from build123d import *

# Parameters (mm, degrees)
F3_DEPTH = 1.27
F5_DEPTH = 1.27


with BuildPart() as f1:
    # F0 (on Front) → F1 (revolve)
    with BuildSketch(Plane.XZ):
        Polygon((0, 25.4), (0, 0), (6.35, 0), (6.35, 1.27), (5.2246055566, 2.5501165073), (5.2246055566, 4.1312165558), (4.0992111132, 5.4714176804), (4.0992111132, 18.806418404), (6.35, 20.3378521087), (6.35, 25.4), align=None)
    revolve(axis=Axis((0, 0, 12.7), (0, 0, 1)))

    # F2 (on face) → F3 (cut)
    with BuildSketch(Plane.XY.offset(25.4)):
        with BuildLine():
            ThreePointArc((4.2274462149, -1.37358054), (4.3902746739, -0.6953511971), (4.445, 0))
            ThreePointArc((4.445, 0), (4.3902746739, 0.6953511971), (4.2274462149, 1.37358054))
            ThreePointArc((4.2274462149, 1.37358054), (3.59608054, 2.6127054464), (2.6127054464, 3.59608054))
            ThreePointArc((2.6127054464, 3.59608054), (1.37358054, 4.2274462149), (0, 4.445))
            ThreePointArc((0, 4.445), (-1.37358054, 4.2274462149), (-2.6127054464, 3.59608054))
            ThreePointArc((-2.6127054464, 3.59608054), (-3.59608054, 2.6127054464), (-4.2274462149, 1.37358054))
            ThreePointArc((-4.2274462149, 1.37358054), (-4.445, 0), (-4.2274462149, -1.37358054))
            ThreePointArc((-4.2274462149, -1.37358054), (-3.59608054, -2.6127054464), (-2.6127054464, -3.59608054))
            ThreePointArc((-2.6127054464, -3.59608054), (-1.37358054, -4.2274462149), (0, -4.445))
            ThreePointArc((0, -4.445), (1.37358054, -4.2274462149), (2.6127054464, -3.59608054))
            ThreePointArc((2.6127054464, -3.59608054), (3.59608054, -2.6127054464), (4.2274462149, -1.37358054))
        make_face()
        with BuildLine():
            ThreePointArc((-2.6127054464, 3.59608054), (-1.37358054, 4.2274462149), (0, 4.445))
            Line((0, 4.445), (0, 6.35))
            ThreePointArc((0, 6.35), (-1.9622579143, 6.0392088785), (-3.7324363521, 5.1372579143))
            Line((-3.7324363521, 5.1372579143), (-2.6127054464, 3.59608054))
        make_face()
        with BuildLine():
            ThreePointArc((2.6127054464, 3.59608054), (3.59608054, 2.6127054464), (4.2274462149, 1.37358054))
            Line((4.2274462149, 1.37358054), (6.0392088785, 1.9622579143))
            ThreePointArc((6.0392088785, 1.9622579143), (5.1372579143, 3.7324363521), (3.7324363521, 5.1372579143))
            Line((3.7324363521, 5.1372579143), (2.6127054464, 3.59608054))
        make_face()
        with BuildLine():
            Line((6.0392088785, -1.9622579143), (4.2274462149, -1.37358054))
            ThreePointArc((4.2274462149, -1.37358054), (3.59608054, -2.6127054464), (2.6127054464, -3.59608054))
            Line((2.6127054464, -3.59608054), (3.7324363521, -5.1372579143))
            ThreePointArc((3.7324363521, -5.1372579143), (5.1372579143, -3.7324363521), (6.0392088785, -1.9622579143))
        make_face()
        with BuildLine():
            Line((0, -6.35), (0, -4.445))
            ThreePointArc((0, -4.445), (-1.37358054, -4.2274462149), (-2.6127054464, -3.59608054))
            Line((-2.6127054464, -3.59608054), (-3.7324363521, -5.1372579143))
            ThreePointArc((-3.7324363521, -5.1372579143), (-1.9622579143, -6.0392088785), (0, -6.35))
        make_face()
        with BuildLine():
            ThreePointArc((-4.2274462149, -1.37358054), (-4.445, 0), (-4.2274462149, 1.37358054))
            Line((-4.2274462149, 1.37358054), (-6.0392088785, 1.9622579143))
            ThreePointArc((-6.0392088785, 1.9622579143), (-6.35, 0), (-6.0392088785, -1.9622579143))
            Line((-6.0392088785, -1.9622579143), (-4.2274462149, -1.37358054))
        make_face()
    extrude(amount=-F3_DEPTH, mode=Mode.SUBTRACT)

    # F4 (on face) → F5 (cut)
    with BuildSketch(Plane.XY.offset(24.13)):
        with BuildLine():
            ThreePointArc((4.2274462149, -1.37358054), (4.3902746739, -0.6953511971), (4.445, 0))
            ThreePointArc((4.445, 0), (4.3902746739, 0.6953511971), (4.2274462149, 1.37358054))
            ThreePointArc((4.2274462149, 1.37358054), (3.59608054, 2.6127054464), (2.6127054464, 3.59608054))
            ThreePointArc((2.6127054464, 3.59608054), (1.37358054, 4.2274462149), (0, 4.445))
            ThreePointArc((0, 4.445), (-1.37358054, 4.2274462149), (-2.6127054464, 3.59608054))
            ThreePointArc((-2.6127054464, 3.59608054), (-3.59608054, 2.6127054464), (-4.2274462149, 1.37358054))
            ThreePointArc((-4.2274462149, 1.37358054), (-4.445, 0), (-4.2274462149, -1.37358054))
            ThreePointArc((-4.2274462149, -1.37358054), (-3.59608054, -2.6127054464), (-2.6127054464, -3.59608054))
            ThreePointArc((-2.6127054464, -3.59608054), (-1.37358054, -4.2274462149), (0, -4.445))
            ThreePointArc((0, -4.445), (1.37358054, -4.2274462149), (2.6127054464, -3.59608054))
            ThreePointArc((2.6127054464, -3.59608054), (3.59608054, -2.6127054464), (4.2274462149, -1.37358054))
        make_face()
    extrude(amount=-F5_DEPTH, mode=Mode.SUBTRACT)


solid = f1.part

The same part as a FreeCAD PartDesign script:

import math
import FreeCAD as App
import Part
import Sketcher
from FreeCAD import Vector
Q = App.Units.Quantity


def add_polygon(sketch, points):
    """Adds a closed chain of lines whose ends are joined by coincident constraints."""
    first, n = sketch.GeometryCount, len(points)
    for a, b in zip(points, points[1:] + points[:1]):
        sketch.addGeometry(Part.LineSegment(App.Vector(*a, 0), App.Vector(*b, 0)), False)
    for i in range(n):
        sketch.addConstraint(Sketcher.Constraint("Coincident", first + i, 2, first + (i + 1) % n, 1))

doc = App.newDocument("Part")
params = doc.addObject("Spreadsheet::Sheet", "Params")
for row, (alias, value) in enumerate([
    ("sketch1_height", "1 in"),
    ("sketch1_width", "0.25 in"),
    ("sketch1_height2", "0.05 in"),
    ("sketch1_height3", "0.525 in"),
    ("revolution_angle", "360 deg"),
    ("sketch2_radius", "0.25 in"),
    ("sketch2_radius2", "0.175 in"),
    ("pocket1_length", "0.05 in"),
    ("sketch3_radius", "0.175 in"),
    ("pocket2_length", "0.05 in"),
], start=1):
    params.set(f"A{row}", alias)
    params.set(f"B{row}", "=" + value)
    params.setAlias(f"B{row}", alias)

body = doc.addObject("PartDesign::Body", "Body")

sketch1 = body.newObject("Sketcher::SketchObject", "Sketch")
sketch1.AttachmentSupport = (doc.getObject("XZ_Plane"), [""])
sketch1.MapMode = "FlatFace"
add_polygon(sketch1, [(0, 25.4), (0, 0), (6.3, 0), (6.3, 1.3), (5.2, 2.6), (5.2, 4.1), (4.1, 5.5), (4.1, 18.8), (6.3, 20.3), (6.3, 25.4)])
sketch1.addConstraint(Sketcher.Constraint("Vertical", 0))
sketch1.addConstraint(Sketcher.Constraint("Horizontal", 1))
sketch1.addConstraint(Sketcher.Constraint("Vertical", 2))
sketch1.addConstraint(Sketcher.Constraint("Vertical", 4))
sketch1.addConstraint(Sketcher.Constraint("Vertical", 6))
sketch1.addConstraint(Sketcher.Constraint("Vertical", 8))
sketch1.addConstraint(Sketcher.Constraint("Horizontal", 9))
sketch1.addConstraint(Sketcher.Constraint("Coincident", 0, 2, -1, 1))
sketch1.addConstraint(Sketcher.Constraint("Vertical", 2, 2, 7, 2))
sketch1.addConstraint(Sketcher.Constraint("DistanceY", 0, 2, 0, 1, Q("1 in")))
sketch1.addConstraint(Sketcher.Constraint("DistanceX", 1, 1, 1, 2, Q("0.25 in")))
sketch1.addConstraint(Sketcher.Constraint("DistanceY", 2, 1, 2, 2, Q("0.05 in")))
sketch1.addConstraint(Sketcher.Constraint("DistanceY", 6, 1, 6, 2, Q("0.525 in")))
sketch1.addConstraint(Sketcher.Constraint("DistanceY", 4, 1, 4, 2, 1.5811))
sketch1.addConstraint(Sketcher.Constraint("DistanceY", 4, 2, 5, 2, 1.340201))
sketch1.addConstraint(Sketcher.Constraint("DistanceY", 8, 1, 8, 2, 5.062148))
sketch1.addConstraint(Sketcher.Constraint("DistanceX", -1, 1, 5, 2, 4.099211))
sketch1.addConstraint(Sketcher.Constraint("DistanceY", -1, 1, 6, 2, 18.806418))
sketch1.addConstraint(Sketcher.Constraint("Distance", 3, 1.704468))
sketch1.setExpression("Constraints[19]", "Params.sketch1_height")
sketch1.setExpression("Constraints[20]", "Params.sketch1_width")
sketch1.setExpression("Constraints[21]", "Params.sketch1_height2")
sketch1.setExpression("Constraints[22]", "Params.sketch1_height3")
revolution = body.newObject("PartDesign::Revolution", "Revolution")
revolution.Profile = sketch1
revolution.ReferenceAxis = (sketch1, ["V_Axis"])
revolution.setExpression("Angle", "Params.revolution_angle")

sketch2 = body.newObject("Sketcher::SketchObject", "Sketch001")
sketch2.AttachmentSupport = (doc.getObject("XY_Plane"), [""])
sketch2.MapMode = "FlatFace"
sketch2.AttachmentOffset = App.Placement(Vector(0, 0, 1 * 25.4), App.Rotation())
sketch2.addGeometry(Part.ArcOfCircle(Part.Circle(Vector(0, 0, 0), Vector(0, 0, 1), 4.4), math.radians(-18), math.radians(0)), False)
sketch2.addGeometry(Part.ArcOfCircle(Part.Circle(Vector(0, 0, 0), Vector(0, 0, 1), 4.4), math.radians(0), math.radians(18)), False)
sketch2.addGeometry(Part.LineSegment(Vector(4.2, 1.4, 0), Vector(6, 2, 0)), False)
sketch2.addGeometry(Part.ArcOfCircle(Part.Circle(Vector(0, 0, 0), Vector(0, 0, 1), 6.3), math.radians(18), math.radians(54)), False)
sketch2.addGeometry(Part.LineSegment(Vector(3.7, 5.1, 0), Vector(2.6, 3.6, 0)), False)
sketch2.addGeometry(Part.ArcOfCircle(Part.Circle(Vector(0, 0, 0), Vector(0, 0, 1), 4.4), math.radians(54), math.radians(90)), False)
sketch2.addGeometry(Part.LineSegment(Vector(0, 4.4, 0), Vector(0, 6.3, 0)), False)
sketch2.addGeometry(Part.ArcOfCircle(Part.Circle(Vector(0, 0, 0), Vector(0, 0, 1), 6.3), math.radians(90), math.radians(126)), False)
sketch2.addGeometry(Part.LineSegment(Vector(-3.7, 5.1, 0), Vector(-2.6, 3.6, 0)), False)
sketch2.addGeometry(Part.ArcOfCircle(Part.Circle(Vector(0, 0, 0), Vector(0, 0, 1), 4.4), math.radians(126), math.radians(162)), False)
sketch2.addGeometry(Part.LineSegment(Vector(-4.2, 1.4, 0), Vector(-6, 2, 0)), False)
sketch2.addGeometry(Part.ArcOfCircle(Part.Circle(Vector(0, 0, 0), Vector(0, 0, 1), 6.4), math.radians(162), math.radians(198)), False)
sketch2.addGeometry(Part.LineSegment(Vector(-6, -2, 0), Vector(-4.2, -1.4, 0)), False)
sketch2.addGeometry(Part.ArcOfCircle(Part.Circle(Vector(0, 0, 0), Vector(0, 0, 1), 4.4), math.radians(-162), math.radians(-126)), False)
sketch2.addGeometry(Part.LineSegment(Vector(-2.6, -3.6, 0), Vector(-3.7, -5.1, 0)), False)
sketch2.addGeometry(Part.ArcOfCircle(Part.Circle(Vector(0, 0, 0), Vector(0, 0, 1), 6.3), math.radians(-126), math.radians(-90)), False)
sketch2.addGeometry(Part.LineSegment(Vector(0, -6.3, 0), Vector(0, -4.4, 0)), False)
sketch2.addGeometry(Part.ArcOfCircle(Part.Circle(Vector(0, 0, 0), Vector(0, 0, 1), 4.4), math.radians(-90), math.radians(-54)), False)
sketch2.addGeometry(Part.LineSegment(Vector(2.6, -3.6, 0), Vector(3.7, -5.1, 0)), False)
sketch2.addGeometry(Part.ArcOfCircle(Part.Circle(Vector(0, 0, 0), Vector(0, 0, 1), 6.3), math.radians(-54), math.radians(-18)), False)
sketch2.addGeometry(Part.LineSegment(Vector(6, -2, 0), Vector(4.2, -1.4, 0)), False)
sketch2.addConstraint(Sketcher.Constraint("Tangent", 0, 2, 1, 1))
sketch2.addConstraint(Sketcher.Constraint("Coincident", 1, 2, 2, 1))
sketch2.addConstraint(Sketcher.Constraint("Coincident", 2, 2, 3, 1))
sketch2.addConstraint(Sketcher.Constraint("Coincident", 3, 2, 4, 1))
sketch2.addConstraint(Sketcher.Constraint("Coincident", 4, 2, 5, 1))
sketch2.addConstraint(Sketcher.Constraint("Coincident", 5, 2, 6, 1))
sketch2.addConstraint(Sketcher.Constraint("Coincident", 6, 2, 7, 1))
sketch2.addConstraint(Sketcher.Constraint("Coincident", 7, 2, 8, 1))
sketch2.addConstraint(Sketcher.Constraint("Coincident", 8, 2, 9, 1))
sketch2.addConstraint(Sketcher.Constraint("Coincident", 9, 2, 10, 1))
sketch2.addConstraint(Sketcher.Constraint("Coincident", 10, 2, 11, 1))
sketch2.addConstraint(Sketcher.Constraint("Coincident", 11, 2, 12, 1))
sketch2.addConstraint(Sketcher.Constraint("Coincident", 12, 2, 13, 1))
sketch2.addConstraint(Sketcher.Constraint("Coincident", 13, 2, 14, 1))
sketch2.addConstraint(Sketcher.Constraint("Coincident", 14, 2, 15, 1))
sketch2.addConstraint(Sketcher.Constraint("Coincident", 15, 2, 16, 1))
sketch2.addConstraint(Sketcher.Constraint("Coincident", 16, 2, 17, 1))
sketch2.addConstraint(Sketcher.Constraint("Coincident", 17, 2, 18, 1))
sketch2.addConstraint(Sketcher.Constraint("Coincident", 18, 2, 19, 1))
sketch2.addConstraint(Sketcher.Constraint("Coincident", 19, 2, 20, 1))
sketch2.addConstraint(Sketcher.Constraint("Coincident", 20, 2, 0, 1))
sketch2.addConstraint(Sketcher.Constraint("Vertical", 6))
sketch2.addConstraint(Sketcher.Constraint("Vertical", 16))
sketch2.addConstraint(Sketcher.Constraint("Coincident", 0, 3, -1, 1))
sketch2.addConstraint(Sketcher.Constraint("Coincident", 3, 3, -1, 1))
sketch2.addConstraint(Sketcher.Constraint("Coincident", 5, 3, -1, 1))
sketch2.addConstraint(Sketcher.Constraint("Coincident", 7, 3, -1, 1))
sketch2.addConstraint(Sketcher.Constraint("Coincident", 9, 3, -1, 1))
sketch2.addConstraint(Sketcher.Constraint("Coincident", 11, 3, -1, 1))
sketch2.addConstraint(Sketcher.Constraint("Coincident", 13, 3, -1, 1))
sketch2.addConstraint(Sketcher.Constraint("Coincident", 15, 3, -1, 1))
sketch2.addConstraint(Sketcher.Constraint("Coincident", 17, 3, -1, 1))
sketch2.addConstraint(Sketcher.Constraint("Coincident", 19, 3, -1, 1))
sketch2.addConstraint(Sketcher.Constraint("Equal", 0, 1))
sketch2.addConstraint(Sketcher.Constraint("Equal", 1, 5))
sketch2.addConstraint(Sketcher.Constraint("Equal", 3, 7))
sketch2.addConstraint(Sketcher.Constraint("Equal", 5, 9))
sketch2.addConstraint(Sketcher.Constraint("Equal", 7, 11))
sketch2.addConstraint(Sketcher.Constraint("Equal", 9, 13))
sketch2.addConstraint(Sketcher.Constraint("Equal", 11, 15))
sketch2.addConstraint(Sketcher.Constraint("Equal", 13, 17))
sketch2.addConstraint(Sketcher.Constraint("Equal", 15, 19))
sketch2.addConstraint(Sketcher.Constraint("PointOnObject", 0, 2, -1))
sketch2.addConstraint(Sketcher.Constraint("PointOnObject", 5, 2, -2))
sketch2.addConstraint(Sketcher.Constraint("PointOnObject", 15, 2, -2))
sketch2.addConstraint(Sketcher.Constraint("Parallel", 2, 12))
sketch2.addConstraint(Sketcher.Constraint("Parallel", 4, 14))
sketch2.addConstraint(Sketcher.Constraint("Parallel", 8, 18))
sketch2.addConstraint(Sketcher.Constraint("Parallel", 10, 20))
sketch2.addConstraint(Sketcher.Constraint("Horizontal", 3, 2, 7, 2))
sketch2.addConstraint(Sketcher.Constraint("Horizontal", 4, 2, 8, 2))
sketch2.addConstraint(Sketcher.Constraint("Horizontal", 1, 2, 9, 2))
sketch2.addConstraint(Sketcher.Constraint("Horizontal", 2, 2, 10, 2))
sketch2.addConstraint(Sketcher.Constraint("Horizontal", 13, 2, 17, 2))
sketch2.addConstraint(Sketcher.Constraint("Horizontal", 11, 2, 19, 2))
sketch2.addConstraint(Sketcher.Constraint("Vertical", 10, 2, 11, 2))
sketch2.addConstraint(Sketcher.Constraint("Vertical", 8, 2, 13, 2))
sketch2.addConstraint(Sketcher.Constraint("Radius", 3, Q("0.25 in")))
sketch2.addConstraint(Sketcher.Constraint("Angle", 2, Q("18 deg")))
sketch2.addConstraint(Sketcher.Constraint("Angle", 4, Q("-126 deg")))
sketch2.addConstraint(Sketcher.Constraint("Radius", 0, Q("0.175 in")))
sketch2.addConstraint(Sketcher.Constraint("DistanceY", 2, 2, 3, 2, Q("0.125 in")))
sketch2.addConstraint(Sketcher.Constraint("DistanceY", -1, 1, 1, 2, 1.373581))
sketch2.setExpression("Constraints[57]", "Params.sketch2_radius")
sketch2.setExpression("Constraints[60]", "Params.sketch2_radius2")
pocket1 = body.newObject("PartDesign::Pocket", "Pocket")
pocket1.Profile = sketch2
pocket1.setExpression("Length", "Params.pocket1_length")

sketch3 = body.newObject("Sketcher::SketchObject", "Sketch002")
sketch3.AttachmentSupport = (doc.getObject("XY_Plane"), [""])
sketch3.MapMode = "FlatFace"
sketch3.AttachmentOffset = App.Placement(Vector(0, 0, 0.95 * 25.4), App.Rotation())
sketch3.addGeometry(Part.ArcOfCircle(Part.Circle(Vector(0, 0, 0), Vector(0, 0, 1), 4.4), math.radians(-18), math.radians(0)), False)
sketch3.addGeometry(Part.ArcOfCircle(Part.Circle(Vector(0, 0, 0), Vector(0, 0, 1), 4.4), math.radians(0), math.radians(18)), False)
sketch3.addGeometry(Part.ArcOfCircle(Part.Circle(Vector(0, 0, 0), Vector(0, 0, 1), 4.4), math.radians(18), math.radians(54)), False)
sketch3.addGeometry(Part.ArcOfCircle(Part.Circle(Vector(0, 0, 0), Vector(0, 0, 1), 4.4), math.radians(54), math.radians(90)), False)
sketch3.addGeometry(Part.ArcOfCircle(Part.Circle(Vector(0, 0, 0), Vector(0, 0, 1), 4.4), math.radians(90), math.radians(126)), False)
sketch3.addGeometry(Part.ArcOfCircle(Part.Circle(Vector(0, 0, 0), Vector(0, 0, 1), 4.4), math.radians(126), math.radians(162)), False)
sketch3.addGeometry(Part.ArcOfCircle(Part.Circle(Vector(0, 0, 0), Vector(0, 0, 1), 4.4), math.radians(162), math.radians(198)), False)
sketch3.addGeometry(Part.ArcOfCircle(Part.Circle(Vector(0, 0, 0), Vector(0, 0, 1), 4.4), math.radians(-162), math.radians(-126)), False)
sketch3.addGeometry(Part.ArcOfCircle(Part.Circle(Vector(0, 0, 0), Vector(0, 0, 1), 4.4), math.radians(-126), math.radians(-90)), False)
sketch3.addGeometry(Part.ArcOfCircle(Part.Circle(Vector(0, 0, 0), Vector(0, 0, 1), 4.4), math.radians(-90), math.radians(-54)), False)
sketch3.addGeometry(Part.ArcOfCircle(Part.Circle(Vector(0, 0, 0), Vector(0, 0, 1), 4.4), math.radians(-54), math.radians(-18)), False)
sketch3.addConstraint(Sketcher.Constraint("Tangent", 0, 2, 1, 1))
sketch3.addConstraint(Sketcher.Constraint("Tangent", 1, 2, 2, 1))
sketch3.addConstraint(Sketcher.Constraint("Tangent", 2, 2, 3, 1))
sketch3.addConstraint(Sketcher.Constraint("Tangent", 3, 2, 4, 1))
sketch3.addConstraint(Sketcher.Constraint("Tangent", 4, 2, 5, 1))
sketch3.addConstraint(Sketcher.Constraint("Tangent", 5, 2, 6, 1))
sketch3.addConstraint(Sketcher.Constraint("Tangent", 6, 2, 7, 1))
sketch3.addConstraint(Sketcher.Constraint("Tangent", 7, 2, 8, 1))
sketch3.addConstraint(Sketcher.Constraint("Tangent", 8, 2, 9, 1))
sketch3.addConstraint(Sketcher.Constraint("Tangent", 9, 2, 10, 1))
sketch3.addConstraint(Sketcher.Constraint("Tangent", 10, 2, 0, 1))
sketch3.addConstraint(Sketcher.Constraint("Coincident", 0, 3, -1, 1))
sketch3.addConstraint(Sketcher.Constraint("Coincident", 2, 3, -1, 1))
sketch3.addConstraint(Sketcher.Constraint("Coincident", 4, 3, -1, 1))
sketch3.addConstraint(Sketcher.Constraint("Coincident", 6, 3, -1, 1))
sketch3.addConstraint(Sketcher.Constraint("Coincident", 8, 3, -1, 1))
sketch3.addConstraint(Sketcher.Constraint("PointOnObject", 0, 2, -1))
sketch3.addConstraint(Sketcher.Constraint("PointOnObject", 3, 2, -2))
sketch3.addConstraint(Sketcher.Constraint("PointOnObject", 8, 2, -2))
sketch3.addConstraint(Sketcher.Constraint("Horizontal", 2, 2, 4, 2))
sketch3.addConstraint(Sketcher.Constraint("Horizontal", 1, 2, 5, 2))
sketch3.addConstraint(Sketcher.Constraint("Horizontal", 7, 2, 9, 2))
sketch3.addConstraint(Sketcher.Constraint("Horizontal", 6, 2, 10, 2))
sketch3.addConstraint(Sketcher.Constraint("Vertical", 5, 2, 6, 2))
sketch3.addConstraint(Sketcher.Constraint("Vertical", 4, 2, 7, 2))
sketch3.addConstraint(Sketcher.Constraint("Radius", 0, Q("0.175 in")))
sketch3.addConstraint(Sketcher.Constraint("DistanceY", 1, 2, 2, 2, Q("0.0875 in")))
sketch3.addConstraint(Sketcher.Constraint("DistanceY", -1, 1, 1, 2, 1.373581))
sketch3.setExpression("Constraints[25]", "Params.sketch3_radius")
pocket2 = body.newObject("PartDesign::Pocket", "Pocket001")
pocket2.Profile = sketch3
pocket2.setExpression("Length", "Params.pocket2_length")

doc.recompute()
